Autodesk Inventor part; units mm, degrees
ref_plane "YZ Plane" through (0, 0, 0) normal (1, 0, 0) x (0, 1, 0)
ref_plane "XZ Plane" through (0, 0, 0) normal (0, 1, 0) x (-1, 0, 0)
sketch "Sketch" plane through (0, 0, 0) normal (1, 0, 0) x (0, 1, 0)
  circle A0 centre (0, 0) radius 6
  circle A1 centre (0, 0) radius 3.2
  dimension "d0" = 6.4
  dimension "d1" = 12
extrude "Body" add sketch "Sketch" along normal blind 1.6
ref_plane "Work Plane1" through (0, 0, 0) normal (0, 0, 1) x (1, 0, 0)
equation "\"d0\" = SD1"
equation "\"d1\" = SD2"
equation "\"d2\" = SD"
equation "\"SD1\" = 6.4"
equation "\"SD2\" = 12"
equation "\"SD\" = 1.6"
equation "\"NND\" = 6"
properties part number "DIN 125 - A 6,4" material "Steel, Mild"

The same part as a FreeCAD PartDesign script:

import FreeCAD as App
import Part
import Sketcher

doc = App.newDocument("Part")
body = doc.addObject("PartDesign::Body", "Body")

sketch1 = body.newObject("Sketcher::SketchObject", "Sketch")
sketch1.AttachmentSupport = (doc.getObject("YZ_Plane"), [""])
sketch1.MapMode = "FlatFace"
sketch1.addGeometry([
    Part.Circle(App.Vector(0, 0, 0), App.Vector(0, 0, 1), 6),
    Part.Circle(App.Vector(0, 0, 0), App.Vector(0, 0, 1), 3.2),
], False)
sketch1.addConstraint([
    Sketcher.Constraint("Coincident", 0, 3, -1, 1),
    Sketcher.Constraint("Coincident", 1, 3, -1, 1),
    Sketcher.Constraint("Diameter", 0, 12.0),
    Sketcher.Constraint("Diameter", 1, 6.4),
])
pad1 = body.newObject("PartDesign::Pad", "Pad")
pad1.Profile = sketch1
pad1.Length = 1.6

doc.recompute()
